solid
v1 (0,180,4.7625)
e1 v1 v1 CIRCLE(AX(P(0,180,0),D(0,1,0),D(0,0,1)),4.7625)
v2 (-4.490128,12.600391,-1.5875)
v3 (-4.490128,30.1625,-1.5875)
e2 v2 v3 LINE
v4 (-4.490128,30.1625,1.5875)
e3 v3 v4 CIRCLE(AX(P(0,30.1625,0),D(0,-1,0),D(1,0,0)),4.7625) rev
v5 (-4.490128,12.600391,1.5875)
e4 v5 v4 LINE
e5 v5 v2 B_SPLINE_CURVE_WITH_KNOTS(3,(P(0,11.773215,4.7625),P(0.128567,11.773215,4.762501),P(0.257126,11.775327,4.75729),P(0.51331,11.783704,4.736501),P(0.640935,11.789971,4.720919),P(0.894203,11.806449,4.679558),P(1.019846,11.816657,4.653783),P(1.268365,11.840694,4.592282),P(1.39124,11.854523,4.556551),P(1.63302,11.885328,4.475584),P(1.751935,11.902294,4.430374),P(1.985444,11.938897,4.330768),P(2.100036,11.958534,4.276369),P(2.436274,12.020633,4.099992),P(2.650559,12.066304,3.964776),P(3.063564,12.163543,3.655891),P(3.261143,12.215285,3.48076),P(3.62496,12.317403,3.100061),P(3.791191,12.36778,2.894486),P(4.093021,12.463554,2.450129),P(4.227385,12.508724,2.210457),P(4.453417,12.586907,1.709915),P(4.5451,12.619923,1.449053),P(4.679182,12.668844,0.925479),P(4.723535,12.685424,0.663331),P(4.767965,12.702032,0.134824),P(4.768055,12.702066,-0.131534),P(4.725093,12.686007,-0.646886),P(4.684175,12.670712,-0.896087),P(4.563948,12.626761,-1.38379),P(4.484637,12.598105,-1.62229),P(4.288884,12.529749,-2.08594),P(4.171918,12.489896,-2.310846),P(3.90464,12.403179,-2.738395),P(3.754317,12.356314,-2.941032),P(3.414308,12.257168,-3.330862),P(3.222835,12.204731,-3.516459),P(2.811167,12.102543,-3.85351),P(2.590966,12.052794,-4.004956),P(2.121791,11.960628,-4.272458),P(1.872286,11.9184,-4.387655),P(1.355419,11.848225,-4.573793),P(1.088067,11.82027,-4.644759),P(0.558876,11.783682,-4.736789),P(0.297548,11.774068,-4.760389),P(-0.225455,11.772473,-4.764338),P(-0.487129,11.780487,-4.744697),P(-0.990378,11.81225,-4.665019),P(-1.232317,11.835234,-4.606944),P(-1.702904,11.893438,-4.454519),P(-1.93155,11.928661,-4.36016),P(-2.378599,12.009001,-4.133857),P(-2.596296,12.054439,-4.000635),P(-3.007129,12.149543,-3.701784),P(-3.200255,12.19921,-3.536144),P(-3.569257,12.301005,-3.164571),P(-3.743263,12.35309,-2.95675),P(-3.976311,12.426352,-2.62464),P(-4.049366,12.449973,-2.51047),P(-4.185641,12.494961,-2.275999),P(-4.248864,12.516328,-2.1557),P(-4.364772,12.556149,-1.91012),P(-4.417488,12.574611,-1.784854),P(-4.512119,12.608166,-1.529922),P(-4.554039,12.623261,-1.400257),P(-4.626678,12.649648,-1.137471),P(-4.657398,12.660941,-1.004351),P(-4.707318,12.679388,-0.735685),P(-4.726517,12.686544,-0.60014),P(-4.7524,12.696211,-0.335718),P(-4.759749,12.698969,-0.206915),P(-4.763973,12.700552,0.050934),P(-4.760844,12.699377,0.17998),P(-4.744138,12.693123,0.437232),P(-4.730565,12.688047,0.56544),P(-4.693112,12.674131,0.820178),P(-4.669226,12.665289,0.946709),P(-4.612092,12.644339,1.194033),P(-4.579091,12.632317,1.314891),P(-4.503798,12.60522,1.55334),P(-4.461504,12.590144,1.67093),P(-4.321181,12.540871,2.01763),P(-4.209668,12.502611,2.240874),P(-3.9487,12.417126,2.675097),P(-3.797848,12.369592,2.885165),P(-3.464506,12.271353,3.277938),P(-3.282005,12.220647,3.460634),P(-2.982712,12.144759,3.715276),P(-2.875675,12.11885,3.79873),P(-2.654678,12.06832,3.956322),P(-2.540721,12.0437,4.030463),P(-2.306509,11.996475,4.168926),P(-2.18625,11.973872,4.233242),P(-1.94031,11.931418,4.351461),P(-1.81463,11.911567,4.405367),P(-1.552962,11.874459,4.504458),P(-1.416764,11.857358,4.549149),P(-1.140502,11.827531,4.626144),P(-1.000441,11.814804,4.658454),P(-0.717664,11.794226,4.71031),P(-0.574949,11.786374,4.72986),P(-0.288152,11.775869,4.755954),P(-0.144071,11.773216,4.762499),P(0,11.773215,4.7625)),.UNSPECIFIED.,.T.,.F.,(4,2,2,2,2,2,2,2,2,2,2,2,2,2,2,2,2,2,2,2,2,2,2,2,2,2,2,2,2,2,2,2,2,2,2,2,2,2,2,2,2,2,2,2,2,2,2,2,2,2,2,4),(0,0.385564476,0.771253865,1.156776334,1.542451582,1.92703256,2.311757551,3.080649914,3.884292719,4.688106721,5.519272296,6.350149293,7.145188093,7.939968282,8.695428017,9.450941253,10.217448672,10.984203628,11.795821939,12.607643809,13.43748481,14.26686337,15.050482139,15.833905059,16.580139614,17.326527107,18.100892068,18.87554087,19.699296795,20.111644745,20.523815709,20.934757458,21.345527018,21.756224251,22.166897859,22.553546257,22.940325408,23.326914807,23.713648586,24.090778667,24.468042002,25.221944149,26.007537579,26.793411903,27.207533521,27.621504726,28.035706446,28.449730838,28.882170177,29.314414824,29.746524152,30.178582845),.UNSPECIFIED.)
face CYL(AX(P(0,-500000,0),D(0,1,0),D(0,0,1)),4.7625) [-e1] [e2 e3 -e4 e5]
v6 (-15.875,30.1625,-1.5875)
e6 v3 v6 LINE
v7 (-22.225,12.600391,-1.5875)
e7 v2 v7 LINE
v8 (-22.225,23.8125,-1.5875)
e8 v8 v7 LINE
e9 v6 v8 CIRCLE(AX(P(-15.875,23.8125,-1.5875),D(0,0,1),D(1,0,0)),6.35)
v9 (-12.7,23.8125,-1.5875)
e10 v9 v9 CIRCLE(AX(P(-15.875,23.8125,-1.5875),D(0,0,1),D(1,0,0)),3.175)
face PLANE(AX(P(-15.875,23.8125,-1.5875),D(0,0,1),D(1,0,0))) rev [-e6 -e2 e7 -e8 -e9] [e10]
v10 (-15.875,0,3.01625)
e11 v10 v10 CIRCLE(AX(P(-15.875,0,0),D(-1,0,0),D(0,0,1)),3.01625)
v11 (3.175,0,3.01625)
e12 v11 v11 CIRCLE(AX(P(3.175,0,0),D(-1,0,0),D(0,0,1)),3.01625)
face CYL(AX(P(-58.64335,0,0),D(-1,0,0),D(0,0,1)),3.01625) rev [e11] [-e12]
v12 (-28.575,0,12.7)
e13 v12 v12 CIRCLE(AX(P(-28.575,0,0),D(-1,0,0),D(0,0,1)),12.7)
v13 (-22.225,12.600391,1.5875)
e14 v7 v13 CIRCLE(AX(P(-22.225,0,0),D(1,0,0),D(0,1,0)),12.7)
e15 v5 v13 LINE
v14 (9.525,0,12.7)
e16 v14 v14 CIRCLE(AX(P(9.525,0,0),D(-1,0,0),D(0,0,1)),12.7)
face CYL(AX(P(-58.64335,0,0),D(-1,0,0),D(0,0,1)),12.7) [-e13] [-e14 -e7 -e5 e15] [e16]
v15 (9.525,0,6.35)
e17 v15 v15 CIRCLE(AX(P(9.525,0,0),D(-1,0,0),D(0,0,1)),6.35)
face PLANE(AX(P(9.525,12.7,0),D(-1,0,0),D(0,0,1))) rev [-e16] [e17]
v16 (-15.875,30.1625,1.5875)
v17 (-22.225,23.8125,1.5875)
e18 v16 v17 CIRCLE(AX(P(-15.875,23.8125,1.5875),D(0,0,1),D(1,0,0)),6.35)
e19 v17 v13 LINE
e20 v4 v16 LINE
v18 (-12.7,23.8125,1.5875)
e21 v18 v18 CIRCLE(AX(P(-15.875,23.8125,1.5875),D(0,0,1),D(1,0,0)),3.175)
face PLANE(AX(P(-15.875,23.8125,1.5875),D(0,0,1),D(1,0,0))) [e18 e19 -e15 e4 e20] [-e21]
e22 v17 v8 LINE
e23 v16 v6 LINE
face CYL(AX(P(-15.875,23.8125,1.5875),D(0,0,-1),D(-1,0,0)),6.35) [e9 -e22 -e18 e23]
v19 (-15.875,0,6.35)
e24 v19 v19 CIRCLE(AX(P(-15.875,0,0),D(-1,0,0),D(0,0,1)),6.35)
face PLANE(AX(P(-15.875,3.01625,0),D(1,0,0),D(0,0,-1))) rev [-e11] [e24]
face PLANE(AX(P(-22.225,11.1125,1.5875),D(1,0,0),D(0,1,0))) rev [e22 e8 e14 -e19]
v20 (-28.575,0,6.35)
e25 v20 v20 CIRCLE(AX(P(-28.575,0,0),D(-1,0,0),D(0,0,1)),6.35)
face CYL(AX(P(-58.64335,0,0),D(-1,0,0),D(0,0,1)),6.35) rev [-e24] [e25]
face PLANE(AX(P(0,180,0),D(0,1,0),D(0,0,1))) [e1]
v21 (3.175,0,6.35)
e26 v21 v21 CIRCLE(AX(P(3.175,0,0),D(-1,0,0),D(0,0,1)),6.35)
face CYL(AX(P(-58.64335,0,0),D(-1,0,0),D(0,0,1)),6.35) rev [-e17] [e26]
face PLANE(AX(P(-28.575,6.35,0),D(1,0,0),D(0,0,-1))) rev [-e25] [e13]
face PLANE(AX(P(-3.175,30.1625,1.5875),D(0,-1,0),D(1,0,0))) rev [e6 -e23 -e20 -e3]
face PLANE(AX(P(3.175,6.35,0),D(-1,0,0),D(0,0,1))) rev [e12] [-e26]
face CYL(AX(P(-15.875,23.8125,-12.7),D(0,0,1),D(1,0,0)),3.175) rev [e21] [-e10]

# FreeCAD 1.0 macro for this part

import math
import FreeCAD as App
import Part
import Sketcher

V = App.Vector
Q = App.Units.Quantity


def add_polygon(sketch, points):
    """Adds a closed chain of lines whose ends are joined by coincident constraints."""
    first, n = sketch.GeometryCount, len(points)
    for a, b in zip(points, points[1:] + points[:1]):
        sketch.addGeometry(Part.LineSegment(App.Vector(*a, 0), App.Vector(*b, 0)), False)
    for i in range(n):
        sketch.addConstraint(Sketcher.Constraint("Coincident", first + i, 2, first + (i + 1) % n, 1))

doc = App.newDocument("Part")
body = doc.addObject("PartDesign::Body", "Body")
body.AllowCompound = True

sketch1 = doc.addObject("Sketcher::SketchObject", "Sketch")
body.addObject(sketch1)
sketch1.AttachmentSupport = (doc.XY_Plane, [""])
sketch1.MapMode = "FlatFace"
add_polygon(sketch1, [(9.5, 12.7), (-28.6, 12.7), (-28.6, 6.3), (-15.9, 6.3), (-15.9, 3), (3.2, 3), (3.2, 6.3), (9.5, 6.3)])
sketch1.addConstraint(Sketcher.Constraint("Horizontal", 0))
sketch1.addConstraint(Sketcher.Constraint("Vertical", 1))
sketch1.addConstraint(Sketcher.Constraint("Horizontal", 2))
sketch1.addConstraint(Sketcher.Constraint("Vertical", 3))
sketch1.addConstraint(Sketcher.Constraint("Horizontal", 4))
sketch1.addConstraint(Sketcher.Constraint("Vertical", 5))
sketch1.addConstraint(Sketcher.Constraint("Horizontal", 6))
sketch1.addConstraint(Sketcher.Constraint("Vertical", 7))
sketch1.addConstraint(Sketcher.Constraint("Horizontal", 2, 2, 5, 2))
sketch1.addConstraint(Sketcher.Constraint("Equal", 6, 1))
sketch1.addConstraint(Sketcher.Constraint("DistanceX", 0, 2, 0, 1, Q("1.5 in")))
sketch1.addConstraint(Sketcher.Constraint("DistanceX", 2, 1, 2, 2, Q("0.5 in")))
sketch1.addConstraint(Sketcher.Constraint("DistanceX", 4, 1, 4, 2, Q("0.75 in")))
sketch1.addConstraint(Sketcher.Constraint("DistanceY", -1, 1, 0, 2, Q("0.5 in")))
sketch1.addConstraint(Sketcher.Constraint("DistanceX", 0, 2, -1, 1, Q("1.125 in")))
sketch1.addConstraint(Sketcher.Constraint("DistanceY", 3, 2, 3, 1, 3.33375))
revolution = doc.addObject("PartDesign::Revolution", "Revolution")
body.addObject(revolution)
revolution.Profile = sketch1
revolution.ReferenceAxis = (sketch1, ["H_Axis"])
revolution.Angle = 360

sketch2 = doc.addObject("Sketcher::SketchObject", "Sketch001")
body.addObject(sketch2)
sketch2.AttachmentSupport = (doc.XZ_Plane, [""])
sketch2.MapMode = "FlatFace"
sketch2.AttachmentOffset = App.Placement(V(0, 0, -30), App.Rotation())
sketch2.addGeometry(Part.Circle(V(0, 0, 0), V(0, 0, 1), 4.8), False)
sketch2.addConstraint(Sketcher.Constraint("Coincident", 0, 3, -1, 1))
sketch2.addConstraint(Sketcher.Constraint("Diameter", 0, Q("0.375 in")))
pad1 = doc.addObject("PartDesign::Pad", "Pad")
body.addObject(pad1)
pad1.Profile = sketch2
pad1.Length = 150
pad1.Reversed = True

sketch3 = doc.addObject("Sketcher::SketchObject", "Sketch002")
body.addObject(sketch3)
sketch3.AttachmentSupport = (doc.XZ_Plane, [""])
sketch3.MapMode = "FlatFace"
sketch3.AttachmentOffset = App.Placement(V(0, 0, -30), App.Rotation())
sketch3.addGeometry(Part.Circle(V(0, 0, 0), V(0, 0, 1), 4.8), False)
sketch3.addConstraint(Sketcher.Constraint("Coincident", 0, 3, -1, 1))
sketch3.addConstraint(Sketcher.Constraint("Diameter", 0, Q("0.375 in")))
pad2 = doc.addObject("PartDesign::Pad", "Pad001")
body.addObject(pad2)
pad2.Profile = sketch3
pad2.Type = "UpToFirst"

sketch4 = doc.addObject("Sketcher::SketchObject", "Sketch003")
body.addObject(sketch4)
sketch4.AttachmentSupport = (doc.XY_Plane, [""])
sketch4.MapMode = "FlatFace"
sketch4.addGeometry(Part.LineSegment(V(-22, 11, 0), V(-3, 11, 0)), False)
sketch4.addGeometry(Part.LineSegment(V(-3, 11, 0), V(-3, 30, 0)), False)
sketch4.addGeometry(Part.LineSegment(V(-3, 30, 0), V(-16, 30, 0)), False)
sketch4.addGeometry(Part.ArcOfCircle(Part.Circle(V(-16, 24, 0), V(0, 0, 1), 6), math.radians(90), math.radians(180)), False)
sketch4.addGeometry(Part.LineSegment(V(-22, 24, 0), V(-22, 11, 0)), False)
sketch4.addConstraint(Sketcher.Constraint("Coincident", 0, 2, 1, 1))
sketch4.addConstraint(Sketcher.Constraint("Coincident", 1, 2, 2, 1))
sketch4.addConstraint(Sketcher.Constraint("Tangent", 2, 2, 3, 1))
sketch4.addConstraint(Sketcher.Constraint("Tangent", 3, 2, 4, 1))
sketch4.addConstraint(Sketcher.Constraint("Coincident", 4, 2, 0, 1))
sketch4.addConstraint(Sketcher.Constraint("Horizontal", 0))
sketch4.addConstraint(Sketcher.Constraint("Vertical", 1))
sketch4.addConstraint(Sketcher.Constraint("Horizontal", 2))
sketch4.addConstraint(Sketcher.Constraint("Vertical", 4))
sketch4.addConstraint(Sketcher.Constraint("Equal", 0, 1))
sketch4.addConstraint(Sketcher.Constraint("Radius", 3, Q("0.25 in")))
sketch4.addConstraint(Sketcher.Constraint("DistanceX", 2, 2, 2, 1, Q("0.5 in")))
sketch4.addConstraint(Sketcher.Constraint("DistanceX", 3, 3, -1, 1, Q("0.625 in")))
sketch4.addConstraint(Sketcher.Constraint("DistanceY", -1, 1, 3, 3, Q("0.9375 in")))
pad3 = doc.addObject("PartDesign::Pad", "Pad002")
body.addObject(pad3)
pad3.Profile = sketch4
pad3.Length = Q("0.125 in")
pad3.Midplane = True

sketch5 = doc.addObject("Sketcher::SketchObject", "Sketch004")
body.addObject(sketch5)
sketch5.AttachmentSupport = (doc.XY_Plane, [""])
sketch5.MapMode = "FlatFace"
sketch5.AttachmentOffset = App.Placement(V(0, 0, 0.0625 * 25.4), App.Rotation())
sketch5.addGeometry(Part.Circle(V(-15.9, 23.8, 0), V(0, 0, 1), 3.2), False)
sketch5.addConstraint(Sketcher.Constraint("Diameter", 0, Q("0.25 in")))
sketch5.addConstraint(Sketcher.Constraint("DistanceX", 0, 3, -1, 1, Q("0.625 in")))
sketch5.addConstraint(Sketcher.Constraint("DistanceY", -1, 1, 0, 3, Q("0.9375 in")))
pocket1 = doc.addObject("PartDesign::Pocket", "Pocket")
body.addObject(pocket1)
pocket1.Profile = sketch5
pocket1.Type = "ThroughAll"

doc.recompute()
